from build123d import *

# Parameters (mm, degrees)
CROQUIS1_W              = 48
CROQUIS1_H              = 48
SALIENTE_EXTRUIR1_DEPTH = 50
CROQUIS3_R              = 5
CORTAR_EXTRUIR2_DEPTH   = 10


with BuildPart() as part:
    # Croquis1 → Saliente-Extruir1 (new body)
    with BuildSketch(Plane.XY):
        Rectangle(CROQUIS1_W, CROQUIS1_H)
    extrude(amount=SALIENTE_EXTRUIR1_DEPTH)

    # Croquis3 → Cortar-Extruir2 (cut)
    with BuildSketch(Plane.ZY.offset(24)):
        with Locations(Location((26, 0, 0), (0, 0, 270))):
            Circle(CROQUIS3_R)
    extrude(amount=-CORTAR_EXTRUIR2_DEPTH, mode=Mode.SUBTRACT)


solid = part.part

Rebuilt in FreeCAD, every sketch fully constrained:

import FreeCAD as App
import Part
import Sketcher
from FreeCAD import Vector
Q = App.Units.Quantity


def add_polygon(sketch, points):
    """Adds a closed chain of lines whose ends are joined by coincident constraints."""
    first, n = sketch.GeometryCount, len(points)
    for a, b in zip(points, points[1:] + points[:1]):
        sketch.addGeometry(Part.LineSegment(App.Vector(*a, 0), App.Vector(*b, 0)), False)
    for i in range(n):
        sketch.addConstraint(Sketcher.Constraint("Coincident", first + i, 2, first + (i + 1) % n, 1))

doc = App.newDocument("Part")
body = doc.addObject("PartDesign::Body", "Body")

sketch1 = body.newObject("Sketcher::SketchObject", "Sketch")
sketch1.AttachmentSupport = (doc.getObject("XY_Plane"), [""])
sketch1.MapMode = "FlatFace"
add_polygon(sketch1, [(-24, 24), (-24, -24), (24, -24), (24, 24)])
sketch1.addConstraint(Sketcher.Constraint("Vertical", 0))
sketch1.addConstraint(Sketcher.Constraint("Horizontal", 1))
sketch1.addConstraint(Sketcher.Constraint("Vertical", 2))
sketch1.addConstraint(Sketcher.Constraint("Horizontal", 3))
sketch1.addConstraint(Sketcher.Constraint("Symmetric", 0, 2, 2, 2, -1, 1))
sketch1.addConstraint(Sketcher.Constraint("Equal", 3, 0))
sketch1.addConstraint(Sketcher.Constraint("DistanceX", 1, 1, 1, 2, Q("48 mm")))
pad1 = body.newObject("PartDesign::Pad", "Pad")
pad1.Profile = sketch1
pad1.Length = 50

sketch2 = body.newObject("Sketcher::SketchObject", "Sketch001")
sketch2.AttachmentSupport = (doc.getObject("YZ_Plane"), [""])
sketch2.MapMode = "FlatFace"
sketch2.AttachmentOffset = App.Placement(Vector(0, 0, -24), App.Rotation())
sketch2.addGeometry(Part.Circle(Vector(0, 26, 0), Vector(0, 0, 1), 5), False)
sketch2.addConstraint(Sketcher.Constraint("PointOnObject", 0, 3, -2))
sketch2.addConstraint(Sketcher.Constraint("Diameter", 0, Q("10 mm")))
sketch2.addConstraint(Sketcher.Constraint("DistanceY", -1, 1, 0, 3, Q("26 mm")))
pocket1 = body.newObject("PartDesign::Pocket", "Pocket")
pocket1.Profile = sketch2
pocket1.Length = 10
pocket1.Reversed = True

doc.recompute()
